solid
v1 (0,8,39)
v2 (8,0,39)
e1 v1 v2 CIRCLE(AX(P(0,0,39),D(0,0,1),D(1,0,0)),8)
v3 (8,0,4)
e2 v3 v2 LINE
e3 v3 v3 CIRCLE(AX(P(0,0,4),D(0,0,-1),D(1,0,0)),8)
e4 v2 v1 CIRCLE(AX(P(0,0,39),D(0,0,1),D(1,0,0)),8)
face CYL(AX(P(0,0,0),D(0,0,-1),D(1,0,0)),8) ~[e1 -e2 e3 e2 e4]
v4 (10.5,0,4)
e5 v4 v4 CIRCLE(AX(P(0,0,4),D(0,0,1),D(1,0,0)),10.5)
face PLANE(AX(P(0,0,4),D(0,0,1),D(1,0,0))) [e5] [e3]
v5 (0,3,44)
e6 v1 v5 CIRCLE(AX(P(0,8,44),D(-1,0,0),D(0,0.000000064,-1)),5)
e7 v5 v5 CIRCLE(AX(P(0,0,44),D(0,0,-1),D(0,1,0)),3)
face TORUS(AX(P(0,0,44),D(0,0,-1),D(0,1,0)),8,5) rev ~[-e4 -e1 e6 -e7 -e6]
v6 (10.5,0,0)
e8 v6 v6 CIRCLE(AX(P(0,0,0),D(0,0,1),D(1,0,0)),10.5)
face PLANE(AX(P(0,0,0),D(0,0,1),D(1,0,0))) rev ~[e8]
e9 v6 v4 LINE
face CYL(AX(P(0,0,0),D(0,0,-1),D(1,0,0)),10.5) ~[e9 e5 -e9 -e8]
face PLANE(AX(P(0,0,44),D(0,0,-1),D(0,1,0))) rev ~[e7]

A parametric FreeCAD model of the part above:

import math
import FreeCAD as App
import Part
import Sketcher

V = App.Vector

doc = App.newDocument("Part")
params = doc.addObject("Spreadsheet::Sheet", "Params")
for row, (alias, value) in enumerate([
    ("sketch1_diameter", "21 mm"),
    ("pad1_length", "4 mm"),
    ("sketch2_diameter", "16 mm"),
    ("pad2_length", "39 mm"),
    ("sketch3_radius", "5 mm"),
    ("sketch3_width", "3 mm"),
    ("revolution_angle", "360 deg"),
], start=1):
    params.set(f"A{row}", alias)
    params.set(f"B{row}", "=" + value)
    params.setAlias(f"B{row}", alias)

body = doc.addObject("PartDesign::Body", "Body")

sketch1 = body.newObject("Sketcher::SketchObject", "Sketch")
sketch1.AttachmentSupport = (doc.getObject("XY_Plane"), [""])
sketch1.MapMode = "FlatFace"
sketch1.addGeometry(Part.Circle(V(0, 0, 0), V(0, 0, 1), 10), False)
sketch1.addConstraint([
    Sketcher.Constraint("Coincident", 0, 3, -1, 1),
    Sketcher.Constraint("Diameter", 0, 21.0),
])
sketch1.setExpression("Constraints[1]", "Params.sketch1_diameter")
pad1 = body.newObject("PartDesign::Pad", "Pad")
pad1.Profile = sketch1
pad1.setExpression("Length", "Params.pad1_length")

sketch2 = body.newObject("Sketcher::SketchObject", "Sketch001")
sketch2.AttachmentSupport = (doc.getObject("XY_Plane"), [""])
sketch2.MapMode = "FlatFace"
sketch2.addGeometry(Part.Circle(V(0, 0, 0), V(0, 0, 1), 8), False)
sketch2.addConstraint([
    Sketcher.Constraint("Coincident", 0, 3, -1, 1),
    Sketcher.Constraint("Diameter", 0, 16.0),
])
sketch2.setExpression("Constraints[1]", "Params.sketch2_diameter")
pad2 = body.newObject("PartDesign::Pad", "Pad001")
pad2.Profile = sketch2
pad2.setExpression("Length", "Params.pad2_length")

sketch3 = body.newObject("Sketcher::SketchObject", "Sketch002")
sketch3.AttachmentSupport = (doc.getObject("YZ_Plane"), [""])
sketch3.MapMode = "FlatFace"
sketch3.addGeometry([
    Part.LineSegment(V(3, 44, 0), V(0, 44, 0)),
    Part.LineSegment(V(0, 44, 0), V(0, 39, 0)),
    Part.LineSegment(V(0, 39, 0), V(8, 39, 0)),
    Part.ArcOfCircle(Part.Circle(V(8, 44, 0), V(0, 0, 1), 5), math.radians(180), math.radians(270)),
], False)
sketch3.addConstraint([
    Sketcher.Constraint("Coincident", 0, 2, 1, 1),
    Sketcher.Constraint("Coincident", 1, 2, 2, 1),
    Sketcher.Constraint("Tangent", 2, 2, 3, 2),
    Sketcher.Constraint("Coincident", 3, 1, 0, 1),
    Sketcher.Constraint("Horizontal", 0),
    Sketcher.Constraint("Vertical", 1),
    Sketcher.Constraint("Horizontal", 2),
    Sketcher.Constraint("PointOnObject", 0, 2, -2),
    Sketcher.Constraint("Horizontal", 3, 3, 0, 2),
    Sketcher.Constraint("Radius", 3, 5.0),
    Sketcher.Constraint("DistanceX", 0, 2, 0, 1, 3.0),
    Sketcher.Constraint("DistanceY", -1, 1, 3, 3, 44.0),
])
sketch3.setExpression("Constraints[9]", "Params.sketch3_radius")
sketch3.setExpression("Constraints[10]", "Params.sketch3_width")
revolution = body.newObject("PartDesign::Revolution", "Revolution")
revolution.Profile = sketch3
revolution.ReferenceAxis = (sketch3, ["V_Axis"])
revolution.setExpression("Angle", "Params.revolution_angle")

doc.recompute()
